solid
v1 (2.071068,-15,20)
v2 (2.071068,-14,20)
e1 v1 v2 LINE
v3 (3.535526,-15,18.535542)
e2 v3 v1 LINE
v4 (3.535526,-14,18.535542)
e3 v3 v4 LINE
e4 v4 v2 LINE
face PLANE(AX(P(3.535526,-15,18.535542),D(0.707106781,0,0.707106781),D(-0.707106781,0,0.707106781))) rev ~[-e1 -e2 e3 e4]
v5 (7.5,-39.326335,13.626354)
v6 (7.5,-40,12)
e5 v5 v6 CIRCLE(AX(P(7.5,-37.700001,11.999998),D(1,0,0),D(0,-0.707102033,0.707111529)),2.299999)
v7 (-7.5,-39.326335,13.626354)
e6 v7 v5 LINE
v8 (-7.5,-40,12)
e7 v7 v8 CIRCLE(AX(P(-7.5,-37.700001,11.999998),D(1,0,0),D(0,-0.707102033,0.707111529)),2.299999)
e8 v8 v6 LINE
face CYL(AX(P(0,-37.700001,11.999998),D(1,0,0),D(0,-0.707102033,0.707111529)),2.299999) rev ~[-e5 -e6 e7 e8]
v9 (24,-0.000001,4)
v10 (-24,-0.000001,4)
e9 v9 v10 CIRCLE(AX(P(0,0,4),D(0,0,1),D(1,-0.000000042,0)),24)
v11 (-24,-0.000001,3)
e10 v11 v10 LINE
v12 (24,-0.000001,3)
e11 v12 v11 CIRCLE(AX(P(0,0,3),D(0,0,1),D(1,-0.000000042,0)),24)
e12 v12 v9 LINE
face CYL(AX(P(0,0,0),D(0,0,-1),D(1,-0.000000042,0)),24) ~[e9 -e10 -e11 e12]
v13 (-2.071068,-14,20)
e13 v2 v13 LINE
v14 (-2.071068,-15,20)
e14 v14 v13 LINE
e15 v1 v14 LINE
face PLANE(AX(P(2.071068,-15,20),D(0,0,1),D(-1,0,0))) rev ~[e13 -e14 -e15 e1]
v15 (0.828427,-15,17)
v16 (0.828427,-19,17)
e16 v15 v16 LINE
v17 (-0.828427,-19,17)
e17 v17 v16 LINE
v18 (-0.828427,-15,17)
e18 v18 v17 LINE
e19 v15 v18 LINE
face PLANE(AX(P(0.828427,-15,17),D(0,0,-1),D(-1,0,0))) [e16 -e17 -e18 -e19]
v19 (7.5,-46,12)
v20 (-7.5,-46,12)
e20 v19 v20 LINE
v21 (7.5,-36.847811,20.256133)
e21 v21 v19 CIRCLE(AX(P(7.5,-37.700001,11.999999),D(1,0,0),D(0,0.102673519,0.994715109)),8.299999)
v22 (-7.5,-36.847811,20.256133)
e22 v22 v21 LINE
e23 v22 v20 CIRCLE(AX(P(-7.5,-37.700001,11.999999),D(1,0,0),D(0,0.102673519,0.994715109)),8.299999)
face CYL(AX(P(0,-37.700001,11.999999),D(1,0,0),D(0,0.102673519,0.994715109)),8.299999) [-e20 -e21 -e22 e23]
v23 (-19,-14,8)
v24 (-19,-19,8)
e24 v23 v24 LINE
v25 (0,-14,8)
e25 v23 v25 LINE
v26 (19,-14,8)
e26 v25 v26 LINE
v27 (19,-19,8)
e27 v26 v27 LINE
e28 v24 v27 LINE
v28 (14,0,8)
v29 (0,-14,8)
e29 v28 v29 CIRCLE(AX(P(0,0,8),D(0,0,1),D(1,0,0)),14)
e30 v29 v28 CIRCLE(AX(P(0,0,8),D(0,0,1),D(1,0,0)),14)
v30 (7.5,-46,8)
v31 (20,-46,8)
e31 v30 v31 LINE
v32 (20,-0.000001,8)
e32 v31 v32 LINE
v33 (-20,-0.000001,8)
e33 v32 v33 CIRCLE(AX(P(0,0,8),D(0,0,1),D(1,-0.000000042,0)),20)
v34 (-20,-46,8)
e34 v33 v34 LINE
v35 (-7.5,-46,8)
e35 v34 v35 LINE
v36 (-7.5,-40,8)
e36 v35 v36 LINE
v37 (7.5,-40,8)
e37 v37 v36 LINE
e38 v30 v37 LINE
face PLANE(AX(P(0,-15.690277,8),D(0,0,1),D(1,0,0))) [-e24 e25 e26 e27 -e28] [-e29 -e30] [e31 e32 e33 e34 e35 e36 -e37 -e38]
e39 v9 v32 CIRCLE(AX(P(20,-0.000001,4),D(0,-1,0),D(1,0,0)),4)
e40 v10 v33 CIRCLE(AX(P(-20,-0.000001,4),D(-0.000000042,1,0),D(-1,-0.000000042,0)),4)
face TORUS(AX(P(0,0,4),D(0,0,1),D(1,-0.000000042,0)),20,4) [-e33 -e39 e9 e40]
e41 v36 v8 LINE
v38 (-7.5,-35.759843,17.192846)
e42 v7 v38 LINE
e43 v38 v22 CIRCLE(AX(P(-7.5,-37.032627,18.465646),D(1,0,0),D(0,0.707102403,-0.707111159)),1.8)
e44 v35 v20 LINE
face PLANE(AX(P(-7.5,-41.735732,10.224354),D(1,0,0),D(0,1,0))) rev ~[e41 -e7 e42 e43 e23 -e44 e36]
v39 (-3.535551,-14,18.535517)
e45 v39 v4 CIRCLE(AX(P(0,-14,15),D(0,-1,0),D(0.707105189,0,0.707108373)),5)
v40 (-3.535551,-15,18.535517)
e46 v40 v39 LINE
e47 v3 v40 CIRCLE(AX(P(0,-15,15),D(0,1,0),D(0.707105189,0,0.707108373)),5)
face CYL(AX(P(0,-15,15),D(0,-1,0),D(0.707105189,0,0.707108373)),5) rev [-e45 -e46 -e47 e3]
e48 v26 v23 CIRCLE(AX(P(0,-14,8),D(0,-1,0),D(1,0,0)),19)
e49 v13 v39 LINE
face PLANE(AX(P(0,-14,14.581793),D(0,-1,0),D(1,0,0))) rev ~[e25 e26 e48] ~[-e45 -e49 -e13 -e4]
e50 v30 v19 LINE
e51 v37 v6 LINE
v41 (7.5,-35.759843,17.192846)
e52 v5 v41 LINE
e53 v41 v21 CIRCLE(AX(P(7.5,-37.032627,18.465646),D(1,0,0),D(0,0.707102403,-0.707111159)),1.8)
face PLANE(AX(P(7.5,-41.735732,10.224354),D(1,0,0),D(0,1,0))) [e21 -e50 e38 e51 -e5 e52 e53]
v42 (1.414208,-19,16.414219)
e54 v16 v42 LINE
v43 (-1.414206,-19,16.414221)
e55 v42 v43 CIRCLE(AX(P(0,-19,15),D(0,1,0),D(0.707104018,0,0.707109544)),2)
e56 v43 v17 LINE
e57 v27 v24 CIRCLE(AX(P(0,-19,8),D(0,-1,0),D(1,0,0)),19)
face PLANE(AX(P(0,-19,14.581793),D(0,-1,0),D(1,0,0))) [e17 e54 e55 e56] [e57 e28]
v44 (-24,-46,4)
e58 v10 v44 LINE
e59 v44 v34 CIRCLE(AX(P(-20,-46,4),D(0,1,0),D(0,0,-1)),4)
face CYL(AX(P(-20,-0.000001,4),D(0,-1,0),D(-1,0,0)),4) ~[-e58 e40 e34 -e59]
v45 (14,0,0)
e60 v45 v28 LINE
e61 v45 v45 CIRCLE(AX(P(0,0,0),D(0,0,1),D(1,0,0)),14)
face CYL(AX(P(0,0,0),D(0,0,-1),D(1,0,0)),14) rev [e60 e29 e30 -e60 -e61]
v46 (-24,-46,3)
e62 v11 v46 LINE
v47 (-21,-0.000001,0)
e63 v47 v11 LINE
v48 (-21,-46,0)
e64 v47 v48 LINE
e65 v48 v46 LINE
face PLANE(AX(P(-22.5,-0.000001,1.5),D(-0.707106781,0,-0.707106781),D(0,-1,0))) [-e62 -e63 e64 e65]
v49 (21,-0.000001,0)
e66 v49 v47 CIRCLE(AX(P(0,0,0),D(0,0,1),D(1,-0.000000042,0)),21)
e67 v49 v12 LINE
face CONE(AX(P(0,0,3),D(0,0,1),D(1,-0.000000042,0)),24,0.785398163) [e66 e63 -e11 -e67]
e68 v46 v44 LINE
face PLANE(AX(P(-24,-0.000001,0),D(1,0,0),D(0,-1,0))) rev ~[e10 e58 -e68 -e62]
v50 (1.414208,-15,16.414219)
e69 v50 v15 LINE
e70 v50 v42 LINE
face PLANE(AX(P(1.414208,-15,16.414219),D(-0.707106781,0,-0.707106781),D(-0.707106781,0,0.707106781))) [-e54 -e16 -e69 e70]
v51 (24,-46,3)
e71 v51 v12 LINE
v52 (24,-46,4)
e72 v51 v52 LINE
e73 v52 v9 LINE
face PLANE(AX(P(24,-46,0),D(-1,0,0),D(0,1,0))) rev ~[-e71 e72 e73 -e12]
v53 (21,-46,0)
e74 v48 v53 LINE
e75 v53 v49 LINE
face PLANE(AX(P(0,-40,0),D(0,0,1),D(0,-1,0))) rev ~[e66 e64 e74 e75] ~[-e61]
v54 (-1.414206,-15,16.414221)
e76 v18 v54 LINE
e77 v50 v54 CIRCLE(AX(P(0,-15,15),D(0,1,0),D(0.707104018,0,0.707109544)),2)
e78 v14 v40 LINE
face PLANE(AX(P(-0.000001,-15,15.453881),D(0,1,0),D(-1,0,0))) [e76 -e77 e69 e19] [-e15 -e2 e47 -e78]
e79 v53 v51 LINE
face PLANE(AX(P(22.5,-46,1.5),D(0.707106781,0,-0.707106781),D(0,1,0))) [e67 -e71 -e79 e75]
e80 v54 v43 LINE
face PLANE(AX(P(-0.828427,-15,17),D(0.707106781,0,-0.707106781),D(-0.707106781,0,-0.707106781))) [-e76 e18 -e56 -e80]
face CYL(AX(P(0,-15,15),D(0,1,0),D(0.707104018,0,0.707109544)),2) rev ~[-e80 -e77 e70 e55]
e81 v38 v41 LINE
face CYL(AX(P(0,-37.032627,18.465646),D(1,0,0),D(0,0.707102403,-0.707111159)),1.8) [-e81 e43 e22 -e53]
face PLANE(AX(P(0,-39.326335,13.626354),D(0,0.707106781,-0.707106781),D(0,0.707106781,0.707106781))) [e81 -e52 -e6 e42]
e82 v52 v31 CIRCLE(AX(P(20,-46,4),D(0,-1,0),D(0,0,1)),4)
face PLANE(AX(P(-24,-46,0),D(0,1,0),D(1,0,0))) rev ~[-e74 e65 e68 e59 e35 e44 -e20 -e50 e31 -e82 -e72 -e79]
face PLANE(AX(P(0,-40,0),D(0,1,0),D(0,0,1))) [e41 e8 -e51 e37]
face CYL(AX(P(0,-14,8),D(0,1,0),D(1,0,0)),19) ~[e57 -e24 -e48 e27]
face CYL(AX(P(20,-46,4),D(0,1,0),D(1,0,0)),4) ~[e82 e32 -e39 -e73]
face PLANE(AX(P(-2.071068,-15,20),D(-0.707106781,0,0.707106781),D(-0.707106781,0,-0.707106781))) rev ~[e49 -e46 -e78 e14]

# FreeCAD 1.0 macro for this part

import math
import FreeCAD as App
import Part
import Sketcher

V = App.Vector
Q = App.Units.Quantity


def edges_at(feature, points):
    """Names of the edges that pass closest to the given points."""
    edges = feature.Shape.Edges
    near = lambda p: min(range(len(edges)), key=lambda i: edges[i].distToShape(Part.Vertex(*p))[0])
    return sorted({f"Edge{near(p) + 1}" for p in points})

doc = App.newDocument("Part")
body = doc.addObject("PartDesign::Body", "Body")

# Sketch on YZ plane
sketch1 = doc.addObject("Sketcher::SketchObject", "Sketch")
body.addObject(sketch1)
sketch1.AttachmentSupport = (doc.YZ_Plane, [""])
sketch1.MapMode = "FlatFace"
sketch1.addGeometry(Part.LineSegment(V(-40, 0, 0), V(-40, 12, 0)), False)
sketch1.addGeometry(Part.ArcOfCircle(Part.Circle(V(-37.7, 12, 0), V(0, 0, 1), 2.3), math.radians(135), math.radians(180)), False)
sketch1.addGeometry(Part.LineSegment(V(-39.3, 13.6, 0), V(-35.8, 17.2, 0)), False)
sketch1.addGeometry(Part.ArcOfCircle(Part.Circle(V(-37, 18.5, 0), V(0, 0, 1), 1.8), math.radians(-45), math.radians(84)), False)
sketch1.addGeometry(Part.ArcOfCircle(Part.Circle(V(-37.7, 12, 0), V(0, 0, 1), 8.3), math.radians(84), math.radians(180)), False)
sketch1.addGeometry(Part.LineSegment(V(-46, 12, 0), V(-46, 0, 0)), False)
sketch1.addGeometry(Part.LineSegment(V(-46, 0, 0), V(-40, 0, 0)), False)
sketch1.addConstraint(Sketcher.Constraint("Tangent", 0, 2, 1, 2))
sketch1.addConstraint(Sketcher.Constraint("Coincident", 1, 1, 2, 1))
sketch1.addConstraint(Sketcher.Constraint("Coincident", 2, 2, 3, 1))
sketch1.addConstraint(Sketcher.Constraint("Coincident", 3, 2, 4, 1))
sketch1.addConstraint(Sketcher.Constraint("Tangent", 4, 2, 5, 1))
sketch1.addConstraint(Sketcher.Constraint("Coincident", 5, 2, 6, 1))
sketch1.addConstraint(Sketcher.Constraint("Coincident", 6, 2, 0, 1))
sketch1.addConstraint(Sketcher.Constraint("Vertical", 0))
sketch1.addConstraint(Sketcher.Constraint("Vertical", 5))
sketch1.addConstraint(Sketcher.Constraint("Horizontal", 6))
sketch1.addConstraint(Sketcher.Constraint("Coincident", 4, 3, 1, 3))
sketch1.addConstraint(Sketcher.Constraint("PointOnObject", 5, 2, -1))
sketch1.addConstraint(Sketcher.Constraint("Radius", 1, 2.299999))
sketch1.addConstraint(Sketcher.Constraint("Radius", 3, 1.8))
sketch1.addConstraint(Sketcher.Constraint("Radius", 4, 8.299999))
sketch1.addConstraint(Sketcher.Constraint("DistanceY", 0, 1, 0, 2, 12.0))
sketch1.addConstraint(Sketcher.Constraint("Angle", 2, Q("45 deg")))
sketch1.addConstraint(Sketcher.Constraint("DistanceX", 0, 2, -1, 1, 40.0))
sketch1.addConstraint(Sketcher.Constraint("DistanceY", 2, 2, 3, 3, 1.2728))
sketch1.addConstraint(Sketcher.Constraint("Distance", 2, 5.043781))
sketch1.addConstraint(Sketcher.Constraint("DistanceX", 3, 2, -1, 1, 36.847811))
pad1 = doc.addObject("PartDesign::Pad", "Pad")
body.addObject(pad1)
pad1.Profile = sketch1
pad1.Length = 15
pad1.Midplane = True
body2 = doc.addObject("PartDesign::Body", "Body001")

# Sketch on XY plane
sketch2 = doc.addObject("Sketcher::SketchObject", "Sketch001")
body2.addObject(sketch2)
sketch2.AttachmentSupport = (doc.getObject("XY_Plane001"), [""])
sketch2.MapMode = "FlatFace"
sketch2.addGeometry(Part.ArcOfCircle(Part.Circle(V(0, 0, 0), V(0, 0, 1), 5), math.radians(135), math.radians(405)), False)
sketch2.addGeometry(Part.LineSegment(V(3.5, 3.5, 0), V(2.1, 5, 0)), False)
sketch2.addGeometry(Part.LineSegment(V(2.1, 5, 0), V(-2.1, 5, 0)), False)
sketch2.addGeometry(Part.LineSegment(V(-2.1, 5, 0), V(-3.5, 3.5, 0)), False)
sketch2.addConstraint(Sketcher.Constraint("Coincident", 0, 2, 1, 1))
sketch2.addConstraint(Sketcher.Constraint("Coincident", 1, 2, 2, 1))
sketch2.addConstraint(Sketcher.Constraint("Coincident", 2, 2, 3, 1))
sketch2.addConstraint(Sketcher.Constraint("Coincident", 3, 2, 0, 1))
sketch2.addConstraint(Sketcher.Constraint("Horizontal", 2))
sketch2.addConstraint(Sketcher.Constraint("Coincident", 0, 3, -1, 1))
sketch2.addConstraint(Sketcher.Constraint("Perpendicular", 1, 3))
sketch2.addConstraint(Sketcher.Constraint("Radius", 0, 5.0))
sketch2.addConstraint(Sketcher.Constraint("Angle", 1, Q("135 deg")))
sketch2.addConstraint(Sketcher.Constraint("DistanceY", -1, 1, 1, 2, 5.0))
sketch2.addConstraint(Sketcher.Constraint("Distance", 1, 2.071092))
sketch2.addConstraint(Sketcher.Constraint("DistanceY", -1, 1, 3, 2, 3.535542))
pad2 = doc.addObject("PartDesign::Pad", "Pad001")
body2.addObject(pad2)
pad2.Profile = sketch2
pad2.Length = 10
body3 = doc.addObject("PartDesign::Body", "Body002")

# Sketch on XY plane
sketch3 = doc.addObject("Sketcher::SketchObject", "Sketch002")
body3.addObject(sketch3)
sketch3.AttachmentSupport = (doc.getObject("XY_Plane002"), [""])
sketch3.MapMode = "FlatFace"
sketch3.addGeometry(Part.ArcOfCircle(Part.Circle(V(0, 0, 0), V(0, 0, 1), 2), math.radians(135), math.radians(405)), False)
sketch3.addGeometry(Part.LineSegment(V(1.4, 1.4, 0), V(0.8, 2, 0)), False)
sketch3.addGeometry(Part.LineSegment(V(0.8, 2, 0), V(-0.8, 2, 0)), False)
sketch3.addGeometry(Part.LineSegment(V(-0.8, 2, 0), V(-1.4, 1.4, 0)), False)
sketch3.addConstraint(Sketcher.Constraint("Coincident", 0, 2, 1, 1))
sketch3.addConstraint(Sketcher.Constraint("Coincident", 1, 2, 2, 1))
sketch3.addConstraint(Sketcher.Constraint("Coincident", 2, 2, 3, 1))
sketch3.addConstraint(Sketcher.Constraint("Coincident", 3, 2, 0, 1))
sketch3.addConstraint(Sketcher.Constraint("Horizontal", 2))
sketch3.addConstraint(Sketcher.Constraint("Coincident", 0, 3, -1, 1))
sketch3.addConstraint(Sketcher.Constraint("Perpendicular", 1, 3))
sketch3.addConstraint(Sketcher.Constraint("Horizontal", 0, 2, 3, 2))
sketch3.addConstraint(Sketcher.Constraint("Radius", 0, 2.0))
sketch3.addConstraint(Sketcher.Constraint("Angle", 1, Q("135 deg")))
sketch3.addConstraint(Sketcher.Constraint("DistanceY", -1, 1, 1, 2, 2.0))
sketch3.addConstraint(Sketcher.Constraint("Distance", 3, 0.828419))
pad3 = doc.addObject("PartDesign::Pad", "Pad002")
body3.addObject(pad3)
pad3.Profile = sketch3
pad3.Length = 20
pad3.Reversed = True
doc.recompute()

boolean = doc.addObject("PartDesign::Boolean", "Boolean")
body3.addObject(boolean)
boolean.Type = "Fuse"
boolean.addObjects([body2])
body4 = doc.addObject("PartDesign::Body", "Body003")
doc.recompute()

body3.Placement = App.Placement(V(0, 0, 0), App.Rotation(V(1, 0, 0), 90))
boolean2 = doc.addObject("PartDesign::Boolean", "Boolean001")
body4.addObject(boolean2)
boolean2.Type = "Fuse"
boolean2.addObjects([body3])
body5 = doc.addObject("PartDesign::Body", "Body004")
doc.recompute()

body4.Placement = App.Placement(V(0, -15, 15), App.Rotation(V(0, 0, 1), 180))
boolean3 = doc.addObject("PartDesign::Boolean", "Boolean002")
body5.addObject(boolean3)
boolean3.Type = "Fuse"
boolean3.addObjects([body4])
body6 = doc.addObject("PartDesign::Body", "Body005")

# Sketch on XY plane
sketch4 = doc.addObject("Sketcher::SketchObject", "Sketch003")
body6.addObject(sketch4)
sketch4.AttachmentSupport = (doc.getObject("XY_Plane005"), [""])
sketch4.MapMode = "FlatFace"
sketch4.addGeometry(Part.LineSegment(V(-24, 0, 0), V(-24, -46, 0)), False)
sketch4.addGeometry(Part.LineSegment(V(-24, -46, 0), V(24, -46, 0)), False)
sketch4.addGeometry(Part.LineSegment(V(24, -46, 0), V(24, 0, 0)), False)
sketch4.addGeometry(Part.ArcOfCircle(Part.Circle(V(0, 0, 0), V(0, 0, 1), 24), math.radians(0), math.radians(180)), False)
sketch4.addGeometry(Part.Circle(V(0, 0, 0), V(0, 0, 1), 14), False)
sketch4.addConstraint(Sketcher.Constraint("Coincident", 0, 2, 1, 1))
sketch4.addConstraint(Sketcher.Constraint("Coincident", 1, 2, 2, 1))
sketch4.addConstraint(Sketcher.Constraint("Tangent", 2, 2, 3, 1))
sketch4.addConstraint(Sketcher.Constraint("Tangent", 3, 2, 0, 1))
sketch4.addConstraint(Sketcher.Constraint("Vertical", 0))
sketch4.addConstraint(Sketcher.Constraint("Horizontal", 1))
sketch4.addConstraint(Sketcher.Constraint("Vertical", 2))
sketch4.addConstraint(Sketcher.Constraint("Coincident", 3, 3, -1, 1))
sketch4.addConstraint(Sketcher.Constraint("Coincident", 4, 3, -1, 1))
sketch4.addConstraint(Sketcher.Constraint("Diameter", 4, 28.0))
sketch4.addConstraint(Sketcher.Constraint("Radius", 3, 24.0))
sketch4.addConstraint(Sketcher.Constraint("DistanceY", 0, 2, 0, 1, 45.999999))
pad4 = doc.addObject("PartDesign::Pad", "Pad003")
body6.addObject(pad4)
pad4.Profile = sketch4
pad4.Length = 8
doc.recompute()

fillet = doc.addObject("PartDesign::Fillet", "Fillet")
body6.addObject(fillet)
fillet.Base = (pad4, edges_at(pad4, [(24, -23, 8)]))
fillet.Radius = 4
doc.recompute()

chamfer = doc.addObject("PartDesign::Chamfer", "Chamfer")
body6.addObject(chamfer)
chamfer.Base = (fillet, edges_at(fillet, [(24, -23, 0)]))
chamfer.Size = 3
body7 = doc.addObject("PartDesign::Body", "Body006")

# Sketch on XZ plane
sketch5 = doc.addObject("Sketcher::SketchObject", "Sketch004")
body7.addObject(sketch5)
sketch5.AttachmentSupport = (doc.getObject("XZ_Plane006"), [""])
sketch5.MapMode = "FlatFace"
sketch5.AttachmentOffset = App.Placement(V(0, 0, 14), App.Rotation())
sketch5.addGeometry(Part.ArcOfCircle(Part.Circle(V(0, 8, 0), V(0, 0, 1), 19), math.radians(0), math.radians(180)), False)
sketch5.addGeometry(Part.LineSegment(V(-19, 8, 0), V(19, 8, 0)), False)
sketch5.addConstraint(Sketcher.Constraint("Coincident", 0, 1, 1, 2))
sketch5.addConstraint(Sketcher.Constraint("Coincident", 1, 1, 0, 2))
sketch5.addConstraint(Sketcher.Constraint("Horizontal", 1))
sketch5.addConstraint(Sketcher.Constraint("PointOnObject", 0, 3, -2))
sketch5.addConstraint(Sketcher.Constraint("Radius", 0, 19.0))
sketch5.addConstraint(Sketcher.Constraint("DistanceY", -1, 1, 0, 3, 8.0))
sketch5.addConstraint(Sketcher.Constraint("DistanceY", -1, 1, 0, 1, 8.0))
pad5 = doc.addObject("PartDesign::Pad", "Pad004")
body7.addObject(pad5)
pad5.Profile = sketch5
pad5.Length = 5
doc.recompute()

boolean4 = doc.addObject("PartDesign::Boolean", "Boolean003")
body7.addObject(boolean4)
boolean4.Type = "Fuse"
boolean4.addObjects([body6])
doc.recompute()

boolean5 = doc.addObject("PartDesign::Boolean", "Boolean004")
body7.addObject(boolean5)
boolean5.Type = "Cut"
boolean5.addObjects([body5])
doc.recompute()

boolean6 = doc.addObject("PartDesign::Boolean", "Boolean005")
body7.addObject(boolean6)
boolean6.Type = "Fuse"
boolean6.addObjects([body])

doc.recompute()
